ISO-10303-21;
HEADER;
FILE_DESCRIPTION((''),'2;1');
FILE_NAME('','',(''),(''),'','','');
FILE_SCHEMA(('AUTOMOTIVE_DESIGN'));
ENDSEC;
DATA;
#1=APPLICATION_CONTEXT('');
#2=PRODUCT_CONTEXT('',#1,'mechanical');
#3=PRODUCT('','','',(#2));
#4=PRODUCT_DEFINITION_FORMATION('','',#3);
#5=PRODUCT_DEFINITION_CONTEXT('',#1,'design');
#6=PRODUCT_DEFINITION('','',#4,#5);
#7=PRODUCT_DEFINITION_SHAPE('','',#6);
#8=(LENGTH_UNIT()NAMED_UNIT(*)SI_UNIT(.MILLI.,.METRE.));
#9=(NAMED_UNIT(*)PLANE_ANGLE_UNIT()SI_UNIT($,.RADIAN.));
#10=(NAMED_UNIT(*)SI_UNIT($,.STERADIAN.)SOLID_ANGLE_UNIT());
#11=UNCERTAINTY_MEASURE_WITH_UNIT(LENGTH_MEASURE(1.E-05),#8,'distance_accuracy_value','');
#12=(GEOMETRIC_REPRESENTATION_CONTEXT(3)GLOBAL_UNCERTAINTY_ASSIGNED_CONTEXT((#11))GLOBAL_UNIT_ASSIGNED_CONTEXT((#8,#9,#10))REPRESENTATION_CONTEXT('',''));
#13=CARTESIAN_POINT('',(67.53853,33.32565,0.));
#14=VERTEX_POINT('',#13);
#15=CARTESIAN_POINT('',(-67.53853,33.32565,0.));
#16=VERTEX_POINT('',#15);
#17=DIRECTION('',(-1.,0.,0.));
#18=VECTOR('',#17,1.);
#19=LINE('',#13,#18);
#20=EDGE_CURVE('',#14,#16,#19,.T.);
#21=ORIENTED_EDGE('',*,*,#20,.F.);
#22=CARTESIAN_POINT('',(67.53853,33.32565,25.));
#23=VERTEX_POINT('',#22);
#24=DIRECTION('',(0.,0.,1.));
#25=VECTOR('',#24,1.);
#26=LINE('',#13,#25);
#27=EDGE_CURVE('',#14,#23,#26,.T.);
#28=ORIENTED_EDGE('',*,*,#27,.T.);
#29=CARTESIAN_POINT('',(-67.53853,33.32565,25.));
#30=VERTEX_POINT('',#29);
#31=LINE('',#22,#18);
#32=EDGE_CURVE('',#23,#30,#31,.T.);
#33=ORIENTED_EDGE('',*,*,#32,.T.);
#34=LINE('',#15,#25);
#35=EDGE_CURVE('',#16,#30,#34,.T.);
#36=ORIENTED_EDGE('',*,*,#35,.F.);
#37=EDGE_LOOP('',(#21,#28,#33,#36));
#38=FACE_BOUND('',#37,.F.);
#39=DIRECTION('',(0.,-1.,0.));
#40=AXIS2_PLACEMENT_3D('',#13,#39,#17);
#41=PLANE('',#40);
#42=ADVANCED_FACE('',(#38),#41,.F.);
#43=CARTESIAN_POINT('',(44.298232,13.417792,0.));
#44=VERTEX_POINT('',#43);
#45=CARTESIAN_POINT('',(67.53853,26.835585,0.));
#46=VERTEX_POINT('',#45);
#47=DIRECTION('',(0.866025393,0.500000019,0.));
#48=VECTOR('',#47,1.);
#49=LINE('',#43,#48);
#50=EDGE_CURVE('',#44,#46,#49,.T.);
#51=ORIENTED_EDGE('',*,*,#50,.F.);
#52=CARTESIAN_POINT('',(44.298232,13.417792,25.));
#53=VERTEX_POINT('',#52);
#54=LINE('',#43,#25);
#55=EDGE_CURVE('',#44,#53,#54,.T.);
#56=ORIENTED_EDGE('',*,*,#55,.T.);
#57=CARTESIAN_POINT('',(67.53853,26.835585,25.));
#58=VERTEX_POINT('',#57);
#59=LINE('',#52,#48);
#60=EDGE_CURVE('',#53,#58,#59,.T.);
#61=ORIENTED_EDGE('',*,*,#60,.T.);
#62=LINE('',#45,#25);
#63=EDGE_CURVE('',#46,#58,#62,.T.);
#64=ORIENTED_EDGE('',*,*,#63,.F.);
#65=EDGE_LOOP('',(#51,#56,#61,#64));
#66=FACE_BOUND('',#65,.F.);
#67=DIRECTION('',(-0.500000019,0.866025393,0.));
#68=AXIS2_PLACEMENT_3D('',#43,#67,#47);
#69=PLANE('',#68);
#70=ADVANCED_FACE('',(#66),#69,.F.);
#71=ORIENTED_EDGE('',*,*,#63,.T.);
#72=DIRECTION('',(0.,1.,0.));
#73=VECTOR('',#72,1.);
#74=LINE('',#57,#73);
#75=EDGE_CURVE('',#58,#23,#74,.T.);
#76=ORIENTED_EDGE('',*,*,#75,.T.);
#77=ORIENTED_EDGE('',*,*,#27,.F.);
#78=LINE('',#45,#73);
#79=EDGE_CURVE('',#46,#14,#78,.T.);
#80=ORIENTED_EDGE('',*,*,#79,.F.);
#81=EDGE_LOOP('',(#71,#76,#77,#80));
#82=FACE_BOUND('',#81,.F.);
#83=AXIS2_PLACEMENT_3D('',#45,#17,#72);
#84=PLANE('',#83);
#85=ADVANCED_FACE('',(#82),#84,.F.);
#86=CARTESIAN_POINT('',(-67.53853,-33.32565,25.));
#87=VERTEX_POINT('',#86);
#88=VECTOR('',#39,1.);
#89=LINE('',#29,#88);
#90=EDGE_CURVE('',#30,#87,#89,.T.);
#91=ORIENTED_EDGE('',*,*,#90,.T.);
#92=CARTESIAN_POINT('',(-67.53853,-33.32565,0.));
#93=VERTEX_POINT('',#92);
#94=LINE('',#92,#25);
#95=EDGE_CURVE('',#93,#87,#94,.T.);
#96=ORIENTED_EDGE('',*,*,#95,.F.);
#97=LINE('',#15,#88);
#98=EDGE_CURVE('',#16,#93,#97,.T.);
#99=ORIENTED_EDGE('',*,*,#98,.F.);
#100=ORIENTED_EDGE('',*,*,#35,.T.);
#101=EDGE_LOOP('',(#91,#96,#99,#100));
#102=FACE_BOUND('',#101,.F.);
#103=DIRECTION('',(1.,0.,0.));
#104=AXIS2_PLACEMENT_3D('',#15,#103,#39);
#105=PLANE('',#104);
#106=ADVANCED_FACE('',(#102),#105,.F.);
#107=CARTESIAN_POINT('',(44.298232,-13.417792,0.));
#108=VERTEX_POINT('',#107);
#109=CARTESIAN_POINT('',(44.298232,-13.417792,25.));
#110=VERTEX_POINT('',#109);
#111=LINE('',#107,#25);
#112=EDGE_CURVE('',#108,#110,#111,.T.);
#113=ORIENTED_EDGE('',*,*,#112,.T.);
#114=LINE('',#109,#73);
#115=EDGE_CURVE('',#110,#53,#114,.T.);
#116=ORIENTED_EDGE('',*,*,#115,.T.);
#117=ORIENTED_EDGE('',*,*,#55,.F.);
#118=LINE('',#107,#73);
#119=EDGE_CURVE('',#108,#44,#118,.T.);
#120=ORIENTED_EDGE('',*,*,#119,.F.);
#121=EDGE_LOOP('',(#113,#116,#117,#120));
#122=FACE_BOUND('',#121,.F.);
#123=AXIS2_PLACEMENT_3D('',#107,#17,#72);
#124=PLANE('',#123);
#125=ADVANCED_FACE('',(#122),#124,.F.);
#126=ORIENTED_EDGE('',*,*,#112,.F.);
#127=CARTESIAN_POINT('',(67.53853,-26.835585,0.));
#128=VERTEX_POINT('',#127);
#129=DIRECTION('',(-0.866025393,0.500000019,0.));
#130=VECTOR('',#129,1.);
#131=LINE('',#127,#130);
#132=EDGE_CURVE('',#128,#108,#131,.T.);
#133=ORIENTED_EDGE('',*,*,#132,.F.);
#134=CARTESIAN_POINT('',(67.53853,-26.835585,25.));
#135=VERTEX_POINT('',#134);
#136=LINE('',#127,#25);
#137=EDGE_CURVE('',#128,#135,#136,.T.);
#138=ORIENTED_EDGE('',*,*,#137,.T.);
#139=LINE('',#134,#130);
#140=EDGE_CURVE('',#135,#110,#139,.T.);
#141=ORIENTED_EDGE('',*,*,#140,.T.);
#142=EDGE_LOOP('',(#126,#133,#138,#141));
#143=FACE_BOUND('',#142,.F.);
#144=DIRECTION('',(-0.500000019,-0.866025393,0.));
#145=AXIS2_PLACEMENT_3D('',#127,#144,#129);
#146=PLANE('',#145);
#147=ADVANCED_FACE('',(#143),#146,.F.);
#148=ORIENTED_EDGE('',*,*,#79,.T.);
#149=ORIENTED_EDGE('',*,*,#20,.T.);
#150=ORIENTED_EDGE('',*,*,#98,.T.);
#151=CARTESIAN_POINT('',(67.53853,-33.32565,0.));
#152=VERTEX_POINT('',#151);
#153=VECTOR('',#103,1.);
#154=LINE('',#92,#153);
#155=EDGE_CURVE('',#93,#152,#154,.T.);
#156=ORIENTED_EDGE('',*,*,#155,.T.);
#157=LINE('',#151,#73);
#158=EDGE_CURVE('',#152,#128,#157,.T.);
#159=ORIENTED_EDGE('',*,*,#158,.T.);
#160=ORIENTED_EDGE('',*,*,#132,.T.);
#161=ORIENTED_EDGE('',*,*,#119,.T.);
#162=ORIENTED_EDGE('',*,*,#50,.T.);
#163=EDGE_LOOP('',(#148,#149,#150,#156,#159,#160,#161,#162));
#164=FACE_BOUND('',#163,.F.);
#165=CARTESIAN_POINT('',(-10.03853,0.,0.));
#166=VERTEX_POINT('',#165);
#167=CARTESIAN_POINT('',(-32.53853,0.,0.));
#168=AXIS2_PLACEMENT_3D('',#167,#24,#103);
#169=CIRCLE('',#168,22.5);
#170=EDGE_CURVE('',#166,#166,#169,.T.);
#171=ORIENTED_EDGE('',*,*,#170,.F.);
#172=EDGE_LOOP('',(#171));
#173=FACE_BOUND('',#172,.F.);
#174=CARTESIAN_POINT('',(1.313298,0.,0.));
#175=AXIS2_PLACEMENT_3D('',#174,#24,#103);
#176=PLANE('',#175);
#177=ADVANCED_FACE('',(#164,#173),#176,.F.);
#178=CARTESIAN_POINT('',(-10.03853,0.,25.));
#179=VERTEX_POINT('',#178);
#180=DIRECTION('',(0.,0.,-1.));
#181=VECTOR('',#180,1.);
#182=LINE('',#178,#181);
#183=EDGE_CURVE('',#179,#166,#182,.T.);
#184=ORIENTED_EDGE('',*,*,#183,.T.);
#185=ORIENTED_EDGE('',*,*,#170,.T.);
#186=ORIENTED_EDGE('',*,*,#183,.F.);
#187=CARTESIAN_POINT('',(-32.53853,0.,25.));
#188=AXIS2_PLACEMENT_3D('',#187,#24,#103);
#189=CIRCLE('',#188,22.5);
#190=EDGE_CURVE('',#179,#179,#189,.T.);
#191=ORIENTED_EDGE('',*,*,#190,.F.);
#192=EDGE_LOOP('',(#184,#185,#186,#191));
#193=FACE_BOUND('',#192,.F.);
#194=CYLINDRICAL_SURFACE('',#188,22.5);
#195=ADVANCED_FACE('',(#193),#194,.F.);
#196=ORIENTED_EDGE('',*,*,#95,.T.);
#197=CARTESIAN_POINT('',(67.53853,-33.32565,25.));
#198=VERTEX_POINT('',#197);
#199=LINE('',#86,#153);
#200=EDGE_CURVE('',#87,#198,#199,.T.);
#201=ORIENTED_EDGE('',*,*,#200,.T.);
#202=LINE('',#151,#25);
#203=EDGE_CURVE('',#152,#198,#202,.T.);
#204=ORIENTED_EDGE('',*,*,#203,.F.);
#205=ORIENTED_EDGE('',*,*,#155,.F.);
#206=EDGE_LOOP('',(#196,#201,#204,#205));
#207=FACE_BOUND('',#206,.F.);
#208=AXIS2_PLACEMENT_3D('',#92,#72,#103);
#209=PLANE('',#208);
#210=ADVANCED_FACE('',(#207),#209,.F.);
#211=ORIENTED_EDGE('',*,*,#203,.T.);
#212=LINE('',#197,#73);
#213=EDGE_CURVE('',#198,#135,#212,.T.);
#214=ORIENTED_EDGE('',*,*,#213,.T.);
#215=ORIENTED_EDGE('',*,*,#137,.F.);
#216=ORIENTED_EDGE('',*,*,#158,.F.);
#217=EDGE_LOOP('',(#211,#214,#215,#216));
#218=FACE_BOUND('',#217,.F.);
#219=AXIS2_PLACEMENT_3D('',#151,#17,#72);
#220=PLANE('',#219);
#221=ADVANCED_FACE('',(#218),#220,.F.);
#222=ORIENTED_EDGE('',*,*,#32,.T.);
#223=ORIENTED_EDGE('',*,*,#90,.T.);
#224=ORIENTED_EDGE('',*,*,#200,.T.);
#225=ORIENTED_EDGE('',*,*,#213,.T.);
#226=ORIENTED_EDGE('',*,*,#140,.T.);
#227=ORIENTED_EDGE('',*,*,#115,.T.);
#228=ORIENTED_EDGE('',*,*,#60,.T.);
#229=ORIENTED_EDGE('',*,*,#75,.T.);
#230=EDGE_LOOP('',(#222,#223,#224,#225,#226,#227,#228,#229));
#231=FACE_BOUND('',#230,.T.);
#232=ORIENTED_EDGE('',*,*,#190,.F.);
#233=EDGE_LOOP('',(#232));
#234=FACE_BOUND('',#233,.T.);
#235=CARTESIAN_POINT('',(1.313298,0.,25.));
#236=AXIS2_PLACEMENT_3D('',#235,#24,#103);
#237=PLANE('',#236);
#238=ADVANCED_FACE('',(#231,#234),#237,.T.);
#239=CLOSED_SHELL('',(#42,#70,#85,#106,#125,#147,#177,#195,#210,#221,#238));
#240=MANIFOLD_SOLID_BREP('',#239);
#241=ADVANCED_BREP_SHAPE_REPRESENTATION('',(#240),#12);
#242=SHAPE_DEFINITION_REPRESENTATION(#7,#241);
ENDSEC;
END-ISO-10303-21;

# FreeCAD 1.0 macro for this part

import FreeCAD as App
import Part
import Sketcher
Q = App.Units.Quantity


def add_polygon(sketch, points):
    """Adds a closed chain of lines whose ends are joined by coincident constraints."""
    first, n = sketch.GeometryCount, len(points)
    for a, b in zip(points, points[1:] + points[:1]):
        sketch.addGeometry(Part.LineSegment(App.Vector(*a, 0), App.Vector(*b, 0)), False)
    for i in range(n):
        sketch.addConstraint(Sketcher.Constraint("Coincident", first + i, 2, first + (i + 1) % n, 1))

doc = App.newDocument("Part")
body = doc.addObject("PartDesign::Body", "Body")

# Sketch on XY plane
sketch1 = body.newObject("Sketcher::SketchObject", "Sketch")
sketch1.AttachmentSupport = (doc.getObject("XY_Plane"), [""])
sketch1.MapMode = "FlatFace"
add_polygon(sketch1, [(67.53853, 26.835585), (67.53853, 33.32565), (-67.53853, 33.32565), (-67.53853, -33.32565), (67.53853, -33.32565), (67.53853, -26.835585), (44.298232, -13.417792), (44.298232, 13.417792)])  # lines 0-7
sketch1.addConstraint(Sketcher.Constraint("Vertical", 0))
sketch1.addConstraint(Sketcher.Constraint("Horizontal", 1))
sketch1.addConstraint(Sketcher.Constraint("Vertical", 2))
sketch1.addConstraint(Sketcher.Constraint("Horizontal", 3))
sketch1.addConstraint(Sketcher.Constraint("Vertical", 4))
sketch1.addConstraint(Sketcher.Constraint("Vertical", 6))
sketch1.addConstraint(Sketcher.Constraint("Symmetric", 0, 2, 2, 2, -1, 1))
sketch1.addConstraint(Sketcher.Constraint("Symmetric", 4, 2, 7, 2, -1))
sketch1.addConstraint(Sketcher.Constraint("Equal", 5, 7))
sketch1.addConstraint(Sketcher.Constraint("Angle", 5, Q("149.999999 deg")))
sketch1.addConstraint(Sketcher.Constraint("DistanceY", 2, 2, 2, 1, Q("66.6513 mm")))
sketch1.addConstraint(Sketcher.Constraint("DistanceX", 1, 2, 1, 1, Q("135.07706 mm")))
sketch1.addConstraint(Sketcher.Constraint("DistanceY", 0, 1, 0, 2, Q("6.490065 mm")))
sketch1.addConstraint(Sketcher.Constraint("DistanceY", 6, 1, 6, 2, Q("26.835584 mm")))
pad1 = body.newObject("PartDesign::Pad", "Pad")
pad1.Profile = sketch1
pad1.Length = 25

# Sketch on XY plane
sketch2 = body.newObject("Sketcher::SketchObject", "Sketch001")
sketch2.AttachmentSupport = (doc.getObject("XY_Plane"), [""])
sketch2.MapMode = "FlatFace"
sketch2.AttachmentOffset = App.Placement(App.Vector(0, 0, 25), App.Rotation())
sketch2.addGeometry(Part.Circle(App.Vector(-32.53853, 0, 0), App.Vector(0, 0, 1), 22.5), False)
sketch2.addConstraint(Sketcher.Constraint("PointOnObject", 0, 3, -1))
sketch2.addConstraint(Sketcher.Constraint("Diameter", 0, Q("45 mm")))
sketch2.addConstraint(Sketcher.Constraint("DistanceX", 0, 3, -1, 1, Q("32.53853 mm")))
pocket1 = body.newObject("PartDesign::Pocket", "Pocket")
pocket1.Profile = sketch2
pocket1.Length = 25

doc.recompute()
